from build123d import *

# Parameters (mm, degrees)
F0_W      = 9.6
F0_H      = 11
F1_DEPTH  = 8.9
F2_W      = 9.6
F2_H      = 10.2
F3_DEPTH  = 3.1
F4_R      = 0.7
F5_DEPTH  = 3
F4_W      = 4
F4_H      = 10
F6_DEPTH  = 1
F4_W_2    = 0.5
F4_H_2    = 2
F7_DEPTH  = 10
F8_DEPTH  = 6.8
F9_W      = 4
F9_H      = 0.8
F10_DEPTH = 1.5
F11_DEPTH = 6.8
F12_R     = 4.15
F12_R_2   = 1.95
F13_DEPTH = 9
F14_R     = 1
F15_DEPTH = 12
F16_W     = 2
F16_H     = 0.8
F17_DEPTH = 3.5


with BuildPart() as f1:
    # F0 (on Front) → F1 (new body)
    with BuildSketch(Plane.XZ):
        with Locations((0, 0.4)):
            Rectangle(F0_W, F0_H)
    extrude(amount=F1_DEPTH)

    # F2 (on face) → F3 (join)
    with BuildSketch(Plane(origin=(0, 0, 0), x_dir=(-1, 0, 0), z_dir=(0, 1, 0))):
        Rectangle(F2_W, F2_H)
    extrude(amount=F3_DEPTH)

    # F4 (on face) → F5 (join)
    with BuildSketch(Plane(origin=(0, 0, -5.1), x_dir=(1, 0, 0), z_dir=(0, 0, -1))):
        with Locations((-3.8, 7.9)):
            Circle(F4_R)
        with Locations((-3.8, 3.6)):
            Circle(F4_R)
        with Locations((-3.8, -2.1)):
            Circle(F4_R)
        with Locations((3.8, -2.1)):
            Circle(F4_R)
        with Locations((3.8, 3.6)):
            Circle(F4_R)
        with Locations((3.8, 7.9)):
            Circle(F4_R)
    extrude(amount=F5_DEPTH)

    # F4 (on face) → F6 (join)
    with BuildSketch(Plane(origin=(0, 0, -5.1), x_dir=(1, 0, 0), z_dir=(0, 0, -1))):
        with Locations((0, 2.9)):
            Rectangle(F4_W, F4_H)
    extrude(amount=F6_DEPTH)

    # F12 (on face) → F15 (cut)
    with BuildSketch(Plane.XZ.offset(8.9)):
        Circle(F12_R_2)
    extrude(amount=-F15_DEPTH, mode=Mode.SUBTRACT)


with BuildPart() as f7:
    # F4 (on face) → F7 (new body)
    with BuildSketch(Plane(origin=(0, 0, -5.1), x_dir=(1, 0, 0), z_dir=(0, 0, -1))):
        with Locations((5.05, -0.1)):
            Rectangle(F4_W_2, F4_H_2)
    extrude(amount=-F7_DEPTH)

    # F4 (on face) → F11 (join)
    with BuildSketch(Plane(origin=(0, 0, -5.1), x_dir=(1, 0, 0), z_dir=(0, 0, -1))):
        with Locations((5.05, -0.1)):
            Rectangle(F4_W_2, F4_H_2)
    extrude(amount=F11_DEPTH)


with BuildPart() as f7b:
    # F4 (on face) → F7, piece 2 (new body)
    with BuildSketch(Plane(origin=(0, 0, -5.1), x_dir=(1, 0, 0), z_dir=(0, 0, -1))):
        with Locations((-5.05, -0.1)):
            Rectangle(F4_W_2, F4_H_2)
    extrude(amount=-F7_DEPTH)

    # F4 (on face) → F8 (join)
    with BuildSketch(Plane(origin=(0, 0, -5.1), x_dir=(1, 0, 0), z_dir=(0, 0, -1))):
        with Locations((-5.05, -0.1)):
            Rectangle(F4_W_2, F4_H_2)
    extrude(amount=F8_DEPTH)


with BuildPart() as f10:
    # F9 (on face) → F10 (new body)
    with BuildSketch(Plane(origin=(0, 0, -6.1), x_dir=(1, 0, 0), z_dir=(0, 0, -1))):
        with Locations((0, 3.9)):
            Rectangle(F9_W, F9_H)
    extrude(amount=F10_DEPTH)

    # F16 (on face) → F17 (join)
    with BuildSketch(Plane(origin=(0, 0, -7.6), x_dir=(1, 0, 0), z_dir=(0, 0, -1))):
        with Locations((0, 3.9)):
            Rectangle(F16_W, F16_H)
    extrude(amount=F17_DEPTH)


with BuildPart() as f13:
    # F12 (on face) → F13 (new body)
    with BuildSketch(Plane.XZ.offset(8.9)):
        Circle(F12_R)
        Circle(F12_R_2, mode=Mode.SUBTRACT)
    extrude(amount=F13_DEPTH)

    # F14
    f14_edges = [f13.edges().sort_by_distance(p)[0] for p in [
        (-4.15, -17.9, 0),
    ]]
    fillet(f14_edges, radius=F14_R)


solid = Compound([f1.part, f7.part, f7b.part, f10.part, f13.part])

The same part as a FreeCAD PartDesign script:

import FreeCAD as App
import Part
import Sketcher

V = App.Vector


def edges_at(feature, points):
    """Names of the edges that pass closest to the given points."""
    edges = feature.Shape.Edges
    near = lambda p: min(range(len(edges)), key=lambda i: edges[i].distToShape(Part.Vertex(*p))[0])
    return sorted({f"Edge{near(p) + 1}" for p in points})

doc = App.newDocument("Part")
body = doc.addObject("PartDesign::Body", "Body")

sketch1 = body.newObject("Sketcher::SketchObject", "Sketch")
sketch1.AttachmentSupport = (doc.getObject("XZ_Plane"), [""])
sketch1.MapMode = "FlatFace"
sketch1.addGeometry([
    Part.LineSegment(V(-5, 6, 0), V(-5, -5, 0)),
    Part.LineSegment(V(-5, -5, 0), V(5, -5, 0)),
    Part.LineSegment(V(5, -5, 0), V(5, 6, 0)),
    Part.LineSegment(V(5, 6, 0), V(-5, 6, 0)),
], False)
sketch1.addConstraint([
    Sketcher.Constraint("Coincident", 0, 2, 1, 1),
    Sketcher.Constraint("Coincident", 1, 2, 2, 1),
    Sketcher.Constraint("Coincident", 2, 2, 3, 1),
    Sketcher.Constraint("Coincident", 3, 2, 0, 1),
    Sketcher.Constraint("Vertical", 0),
    Sketcher.Constraint("Horizontal", 1),
    Sketcher.Constraint("Vertical", 2),
    Sketcher.Constraint("Horizontal", 3),
    Sketcher.Constraint("DistanceY", 0, 2, 0, 1, 11.0),
    Sketcher.Constraint("DistanceX", 1, 1, 1, 2, 9.6),
    Sketcher.Constraint("DistanceX", 0, 2, -1, 1, 4.8),
    Sketcher.Constraint("DistanceY", 0, 2, -1, 1, 5.1),
])
pad1 = body.newObject("PartDesign::Pad", "Pad")
pad1.Profile = sketch1
pad1.Length = 8.9

sketch2 = body.newObject("Sketcher::SketchObject", "Sketch001")
sketch2.AttachmentSupport = (doc.getObject("XZ_Plane"), [""])
sketch2.MapMode = "FlatFace"
sketch2.addGeometry([
    Part.LineSegment(V(5, 5, 0), V(5, -5, 0)),
    Part.LineSegment(V(5, -5, 0), V(-5, -5, 0)),
    Part.LineSegment(V(-5, -5, 0), V(-5, 5, 0)),
    Part.LineSegment(V(-5, 5, 0), V(5, 5, 0)),
], False)
sketch2.addConstraint([
    Sketcher.Constraint("Coincident", 0, 2, 1, 1),
    Sketcher.Constraint("Coincident", 1, 2, 2, 1),
    Sketcher.Constraint("Coincident", 2, 2, 3, 1),
    Sketcher.Constraint("Coincident", 3, 2, 0, 1),
    Sketcher.Constraint("Vertical", 0),
    Sketcher.Constraint("Horizontal", 1),
    Sketcher.Constraint("Vertical", 2),
    Sketcher.Constraint("Horizontal", 3),
    Sketcher.Constraint("Symmetric", 0, 2, 2, 2, -1, 1),
    Sketcher.Constraint("DistanceX", 1, 2, 1, 1, 9.6),
    Sketcher.Constraint("DistanceY", 0, 2, 0, 1, 10.2),
])
pad2 = body.newObject("PartDesign::Pad", "Pad001")
pad2.Profile = sketch2
pad2.Length = 3.1
pad2.Reversed = True

sketch3 = body.newObject("Sketcher::SketchObject", "Sketch002")
sketch3.AttachmentSupport = (doc.getObject("XY_Plane"), [""])
sketch3.MapMode = "FlatFace"
sketch3.AttachmentOffset = App.Placement(V(0, 0, -5.1), App.Rotation())
sketch3.addGeometry([
    Part.Circle(V(-3.8, -7.9, 0), V(0, 0, 1), 0.7),
    Part.Circle(V(-3.8, -3.6, 0), V(0, 0, 1), 0.7),
    Part.Circle(V(-3.8, 2.1, 0), V(0, 0, 1), 0.7),
    Part.Circle(V(3.8, 2.1, 0), V(0, 0, 1), 0.7),
    Part.Circle(V(3.8, -3.6, 0), V(0, 0, 1), 0.7),
    Part.Circle(V(3.8, -7.9, 0), V(0, 0, 1), 0.7),
], False)
sketch3.addConstraint([
    Sketcher.Constraint("Equal", 0, 1),
    Sketcher.Constraint("Equal", 1, 2),
    Sketcher.Constraint("Equal", 2, 3),
    Sketcher.Constraint("Equal", 3, 4),
    Sketcher.Constraint("Equal", 4, 5),
    Sketcher.Constraint("Symmetric", 2, 3, 3, 3, -2),
    Sketcher.Constraint("Symmetric", 1, 3, 4, 3, -2),
    Sketcher.Constraint("Symmetric", 0, 3, 5, 3, -2),
    Sketcher.Constraint("Vertical", 0, 3, 1, 3),
    Sketcher.Constraint("Vertical", 1, 3, 2, 3),
    Sketcher.Constraint("Diameter", 0, 1.4),
    Sketcher.Constraint("DistanceY", 0, 3, 2, 3, 10.0),
    Sketcher.Constraint("DistanceX", 0, 3, -1, 1, 3.8),
    Sketcher.Constraint("DistanceY", 0, 3, -1, 1, 7.9),
    Sketcher.Constraint("DistanceY", 1, 3, -1, 1, 3.6),
])
pad3 = body.newObject("PartDesign::Pad", "Pad002")
pad3.Profile = sketch3
pad3.Length = 3
pad3.Reversed = True

sketch4 = body.newObject("Sketcher::SketchObject", "Sketch003")
sketch4.AttachmentSupport = (doc.getObject("XY_Plane"), [""])
sketch4.MapMode = "FlatFace"
sketch4.AttachmentOffset = App.Placement(V(0, 0, -5.1), App.Rotation())
sketch4.addGeometry([
    Part.LineSegment(V(-2, -7.9, 0), V(-2, 2.1, 0)),
    Part.LineSegment(V(-2, 2.1, 0), V(2, 2.1, 0)),
    Part.LineSegment(V(2, 2.1, 0), V(2, -7.9, 0)),
    Part.LineSegment(V(2, -7.9, 0), V(-2, -7.9, 0)),
], False)
sketch4.addConstraint([
    Sketcher.Constraint("Coincident", 0, 2, 1, 1),
    Sketcher.Constraint("Coincident", 1, 2, 2, 1),
    Sketcher.Constraint("Coincident", 2, 2, 3, 1),
    Sketcher.Constraint("Coincident", 3, 2, 0, 1),
    Sketcher.Constraint("Vertical", 0),
    Sketcher.Constraint("Horizontal", 1),
    Sketcher.Constraint("Vertical", 2),
    Sketcher.Constraint("Horizontal", 3),
    Sketcher.Constraint("DistanceX", 1, 1, 1, 2, 4.0),
    Sketcher.Constraint("DistanceY", 0, 1, 0, 2, 10.0),
    Sketcher.Constraint("DistanceX", 0, 2, -1, 1, 2.0),
    Sketcher.Constraint("DistanceY", -1, 1, 0, 2, 2.1),
])
pad4 = body.newObject("PartDesign::Pad", "Pad003")
pad4.Profile = sketch4
pad4.Length = 1
pad4.Reversed = True

sketch5 = body.newObject("Sketcher::SketchObject", "Sketch004")
sketch5.AttachmentSupport = (doc.getObject("XZ_Plane"), [""])
sketch5.MapMode = "FlatFace"
sketch5.AttachmentOffset = App.Placement(V(0, 0, 8.9), App.Rotation())
sketch5.addGeometry(Part.Circle(V(0, 0, 0), V(0, 0, 1), 1.9), False)
sketch5.addConstraint([
    Sketcher.Constraint("Coincident", 0, 3, -1, 1),
    Sketcher.Constraint("Diameter", 0, 3.9),
])
pocket1 = body.newObject("PartDesign::Pocket", "Pocket")
pocket1.Profile = sketch5
pocket1.Length = 12
body2 = doc.addObject("PartDesign::Body", "Body001")

sketch6 = body2.newObject("Sketcher::SketchObject", "Sketch005")
sketch6.AttachmentSupport = (doc.getObject("XY_Plane001"), [""])
sketch6.MapMode = "FlatFace"
sketch6.AttachmentOffset = App.Placement(V(0, 0, -5.1), App.Rotation())
sketch6.addGeometry([
    Part.LineSegment(V(4.8, -0.9, 0), V(4.8, 1.1, 0)),
    Part.LineSegment(V(4.8, 1.1, 0), V(5.3, 1.1, 0)),
    Part.LineSegment(V(5.3, 1.1, 0), V(5.3, -0.9, 0)),
    Part.LineSegment(V(5.3, -0.9, 0), V(4.8, -0.9, 0)),
], False)
sketch6.addConstraint([
    Sketcher.Constraint("Coincident", 0, 2, 1, 1),
    Sketcher.Constraint("Coincident", 1, 2, 2, 1),
    Sketcher.Constraint("Coincident", 2, 2, 3, 1),
    Sketcher.Constraint("Coincident", 3, 2, 0, 1),
    Sketcher.Constraint("Vertical", 0),
    Sketcher.Constraint("Horizontal", 1),
    Sketcher.Constraint("Vertical", 2),
    Sketcher.Constraint("Horizontal", 3),
    Sketcher.Constraint("DistanceY", 0, 1, 0, 2, 2.0),
    Sketcher.Constraint("DistanceX", 1, 1, 1, 2, 0.5),
    Sketcher.Constraint("DistanceX", -1, 1, 0, 2, 4.8),
    Sketcher.Constraint("DistanceY", -1, 1, 0, 2, 1.1),
])
pad5 = body2.newObject("PartDesign::Pad", "Pad004")
pad5.Profile = sketch6
pad5.Length = 10

sketch7 = body2.newObject("Sketcher::SketchObject", "Sketch006")
sketch7.AttachmentSupport = (doc.getObject("XY_Plane001"), [""])
sketch7.MapMode = "FlatFace"
sketch7.AttachmentOffset = App.Placement(V(0, 0, -5.1), App.Rotation())
sketch7.addGeometry([
    Part.LineSegment(V(4.8, -0.9, 0), V(4.8, 1.1, 0)),
    Part.LineSegment(V(4.8, 1.1, 0), V(5.3, 1.1, 0)),
    Part.LineSegment(V(5.3, 1.1, 0), V(5.3, -0.9, 0)),
    Part.LineSegment(V(5.3, -0.9, 0), V(4.8, -0.9, 0)),
], False)
sketch7.addConstraint([
    Sketcher.Constraint("Coincident", 0, 2, 1, 1),
    Sketcher.Constraint("Coincident", 1, 2, 2, 1),
    Sketcher.Constraint("Coincident", 2, 2, 3, 1),
    Sketcher.Constraint("Coincident", 3, 2, 0, 1),
    Sketcher.Constraint("Vertical", 0),
    Sketcher.Constraint("Horizontal", 1),
    Sketcher.Constraint("Vertical", 2),
    Sketcher.Constraint("Horizontal", 3),
    Sketcher.Constraint("DistanceY", 0, 1, 0, 2, 2.0),
    Sketcher.Constraint("DistanceX", 1, 1, 1, 2, 0.5),
    Sketcher.Constraint("DistanceX", -1, 1, 0, 2, 4.8),
    Sketcher.Constraint("DistanceY", -1, 1, 0, 2, 1.1),
])
pad6 = body2.newObject("PartDesign::Pad", "Pad005")
pad6.Profile = sketch7
pad6.Length = 6.8
pad6.Reversed = True
body3 = doc.addObject("PartDesign::Body", "Body002")

sketch8 = body3.newObject("Sketcher::SketchObject", "Sketch007")
sketch8.AttachmentSupport = (doc.getObject("XY_Plane002"), [""])
sketch8.MapMode = "FlatFace"
sketch8.AttachmentOffset = App.Placement(V(0, 0, -5.1), App.Rotation())
sketch8.addGeometry([
    Part.LineSegment(V(-5.3, -0.9, 0), V(-5.3, 1.1, 0)),
    Part.LineSegment(V(-5.3, 1.1, 0), V(-4.8, 1.1, 0)),
    Part.LineSegment(V(-4.8, 1.1, 0), V(-4.8, -0.9, 0)),
    Part.LineSegment(V(-4.8, -0.9, 0), V(-5.3, -0.9, 0)),
], False)
sketch8.addConstraint([
    Sketcher.Constraint("Coincident", 0, 2, 1, 1),
    Sketcher.Constraint("Coincident", 1, 2, 2, 1),
    Sketcher.Constraint("Coincident", 2, 2, 3, 1),
    Sketcher.Constraint("Coincident", 3, 2, 0, 1),
    Sketcher.Constraint("Vertical", 0),
    Sketcher.Constraint("Horizontal", 1),
    Sketcher.Constraint("Vertical", 2),
    Sketcher.Constraint("Horizontal", 3),
    Sketcher.Constraint("DistanceY", 0, 1, 0, 2, 2.0),
    Sketcher.Constraint("DistanceX", 1, 1, 1, 2, 0.5),
    Sketcher.Constraint("DistanceX", 0, 2, -1, 1, 5.3),
    Sketcher.Constraint("DistanceY", -1, 1, 0, 2, 1.1),
])
pad7 = body3.newObject("PartDesign::Pad", "Pad006")
pad7.Profile = sketch8
pad7.Length = 10

sketch9 = body3.newObject("Sketcher::SketchObject", "Sketch008")
sketch9.AttachmentSupport = (doc.getObject("XY_Plane002"), [""])
sketch9.MapMode = "FlatFace"
sketch9.AttachmentOffset = App.Placement(V(0, 0, -5.1), App.Rotation())
sketch9.addGeometry([
    Part.LineSegment(V(-5.3, -0.9, 0), V(-5.3, 1.1, 0)),
    Part.LineSegment(V(-5.3, 1.1, 0), V(-4.8, 1.1, 0)),
    Part.LineSegment(V(-4.8, 1.1, 0), V(-4.8, -0.9, 0)),
    Part.LineSegment(V(-4.8, -0.9, 0), V(-5.3, -0.9, 0)),
], False)
sketch9.addConstraint([
    Sketcher.Constraint("Coincident", 0, 2, 1, 1),
    Sketcher.Constraint("Coincident", 1, 2, 2, 1),
    Sketcher.Constraint("Coincident", 2, 2, 3, 1),
    Sketcher.Constraint("Coincident", 3, 2, 0, 1),
    Sketcher.Constraint("Vertical", 0),
    Sketcher.Constraint("Horizontal", 1),
    Sketcher.Constraint("Vertical", 2),
    Sketcher.Constraint("Horizontal", 3),
    Sketcher.Constraint("DistanceY", 0, 1, 0, 2, 2.0),
    Sketcher.Constraint("DistanceX", 1, 1, 1, 2, 0.5),
    Sketcher.Constraint("DistanceX", 0, 2, -1, 1, 5.3),
    Sketcher.Constraint("DistanceY", -1, 1, 0, 2, 1.1),
])
pad8 = body3.newObject("PartDesign::Pad", "Pad007")
pad8.Profile = sketch9
pad8.Length = 6.8
pad8.Reversed = True
body4 = doc.addObject("PartDesign::Body", "Body003")

sketch10 = body4.newObject("Sketcher::SketchObject", "Sketch009")
sketch10.AttachmentSupport = (doc.getObject("XY_Plane003"), [""])
sketch10.MapMode = "FlatFace"
sketch10.AttachmentOffset = App.Placement(V(0, 0, -6.1), App.Rotation())
sketch10.addGeometry([
    Part.LineSegment(V(-2, -4.3, 0), V(-2, -3.5, 0)),
    Part.LineSegment(V(-2, -3.5, 0), V(2, -3.5, 0)),
    Part.LineSegment(V(2, -3.5, 0), V(2, -4.3, 0)),
    Part.LineSegment(V(2, -4.3, 0), V(-2, -4.3, 0)),
], False)
sketch10.addConstraint([
    Sketcher.Constraint("Coincident", 0, 2, 1, 1),
    Sketcher.Constraint("Coincident", 1, 2, 2, 1),
    Sketcher.Constraint("Coincident", 2, 2, 3, 1),
    Sketcher.Constraint("Coincident", 3, 2, 0, 1),
    Sketcher.Constraint("Vertical", 0),
    Sketcher.Constraint("Horizontal", 1),
    Sketcher.Constraint("Vertical", 2),
    Sketcher.Constraint("Horizontal", 3),
    Sketcher.Constraint("DistanceX", 1, 1, 1, 2, 4.0),
    Sketcher.Constraint("DistanceY", 0, 1, 0, 2, 0.8),
    Sketcher.Constraint("DistanceX", 0, 2, -1, 1, 2.0),
    Sketcher.Constraint("DistanceY", 0, 2, -1, 1, 3.5),
])
pad9 = body4.newObject("PartDesign::Pad", "Pad008")
pad9.Profile = sketch10
pad9.Length = 1.5
pad9.Reversed = True

sketch11 = body4.newObject("Sketcher::SketchObject", "Sketch010")
sketch11.AttachmentSupport = (doc.getObject("XY_Plane003"), [""])
sketch11.MapMode = "FlatFace"
sketch11.AttachmentOffset = App.Placement(V(0, 0, -7.6), App.Rotation())
sketch11.addGeometry([
    Part.LineSegment(V(-1, -4.3, 0), V(-1, -3.5, 0)),
    Part.LineSegment(V(-1, -3.5, 0), V(1, -3.5, 0)),
    Part.LineSegment(V(1, -3.5, 0), V(1, -4.3, 0)),
    Part.LineSegment(V(1, -4.3, 0), V(-1, -4.3, 0)),
], False)
sketch11.addConstraint([
    Sketcher.Constraint("Coincident", 0, 2, 1, 1),
    Sketcher.Constraint("Coincident", 1, 2, 2, 1),
    Sketcher.Constraint("Coincident", 2, 2, 3, 1),
    Sketcher.Constraint("Coincident", 3, 2, 0, 1),
    Sketcher.Constraint("Vertical", 0),
    Sketcher.Constraint("Horizontal", 1),
    Sketcher.Constraint("Vertical", 2),
    Sketcher.Constraint("Horizontal", 3),
    Sketcher.Constraint("DistanceX", 1, 1, 1, 2, 2.0),
    Sketcher.Constraint("DistanceY", 0, 1, 0, 2, 0.8),
    Sketcher.Constraint("DistanceX", 0, 2, -1, 1, 1.0),
    Sketcher.Constraint("DistanceY", 0, 2, -1, 1, 3.5),
])
pad10 = body4.newObject("PartDesign::Pad", "Pad009")
pad10.Profile = sketch11
pad10.Length = 3.5
pad10.Reversed = True
body5 = doc.addObject("PartDesign::Body", "Body004")

sketch12 = body5.newObject("Sketcher::SketchObject", "Sketch011")
sketch12.AttachmentSupport = (doc.getObject("XZ_Plane004"), [""])
sketch12.MapMode = "FlatFace"
sketch12.AttachmentOffset = App.Placement(V(0, 0, 8.9), App.Rotation())
sketch12.addGeometry([
    Part.Circle(V(0, 0, 0), V(0, 0, 1), 4.2),
    Part.Circle(V(0, 0, 0), V(0, 0, 1), 1.9),
], False)
sketch12.addConstraint([
    Sketcher.Constraint("Coincident", 0, 3, -1, 1),
    Sketcher.Constraint("Coincident", 1, 3, -1, 1),
    Sketcher.Constraint("Diameter", 0, 8.3),
    Sketcher.Constraint("Diameter", 1, 3.9),
])
pad11 = body5.newObject("PartDesign::Pad", "Pad010")
pad11.Profile = sketch12
pad11.Length = 9
doc.recompute()

fillet = body5.newObject("PartDesign::Fillet", "Fillet")
fillet.Base = (pad11, edges_at(pad11, [(-4.15, -17.9, 0)]))
fillet.Radius = 1

doc.recompute()
